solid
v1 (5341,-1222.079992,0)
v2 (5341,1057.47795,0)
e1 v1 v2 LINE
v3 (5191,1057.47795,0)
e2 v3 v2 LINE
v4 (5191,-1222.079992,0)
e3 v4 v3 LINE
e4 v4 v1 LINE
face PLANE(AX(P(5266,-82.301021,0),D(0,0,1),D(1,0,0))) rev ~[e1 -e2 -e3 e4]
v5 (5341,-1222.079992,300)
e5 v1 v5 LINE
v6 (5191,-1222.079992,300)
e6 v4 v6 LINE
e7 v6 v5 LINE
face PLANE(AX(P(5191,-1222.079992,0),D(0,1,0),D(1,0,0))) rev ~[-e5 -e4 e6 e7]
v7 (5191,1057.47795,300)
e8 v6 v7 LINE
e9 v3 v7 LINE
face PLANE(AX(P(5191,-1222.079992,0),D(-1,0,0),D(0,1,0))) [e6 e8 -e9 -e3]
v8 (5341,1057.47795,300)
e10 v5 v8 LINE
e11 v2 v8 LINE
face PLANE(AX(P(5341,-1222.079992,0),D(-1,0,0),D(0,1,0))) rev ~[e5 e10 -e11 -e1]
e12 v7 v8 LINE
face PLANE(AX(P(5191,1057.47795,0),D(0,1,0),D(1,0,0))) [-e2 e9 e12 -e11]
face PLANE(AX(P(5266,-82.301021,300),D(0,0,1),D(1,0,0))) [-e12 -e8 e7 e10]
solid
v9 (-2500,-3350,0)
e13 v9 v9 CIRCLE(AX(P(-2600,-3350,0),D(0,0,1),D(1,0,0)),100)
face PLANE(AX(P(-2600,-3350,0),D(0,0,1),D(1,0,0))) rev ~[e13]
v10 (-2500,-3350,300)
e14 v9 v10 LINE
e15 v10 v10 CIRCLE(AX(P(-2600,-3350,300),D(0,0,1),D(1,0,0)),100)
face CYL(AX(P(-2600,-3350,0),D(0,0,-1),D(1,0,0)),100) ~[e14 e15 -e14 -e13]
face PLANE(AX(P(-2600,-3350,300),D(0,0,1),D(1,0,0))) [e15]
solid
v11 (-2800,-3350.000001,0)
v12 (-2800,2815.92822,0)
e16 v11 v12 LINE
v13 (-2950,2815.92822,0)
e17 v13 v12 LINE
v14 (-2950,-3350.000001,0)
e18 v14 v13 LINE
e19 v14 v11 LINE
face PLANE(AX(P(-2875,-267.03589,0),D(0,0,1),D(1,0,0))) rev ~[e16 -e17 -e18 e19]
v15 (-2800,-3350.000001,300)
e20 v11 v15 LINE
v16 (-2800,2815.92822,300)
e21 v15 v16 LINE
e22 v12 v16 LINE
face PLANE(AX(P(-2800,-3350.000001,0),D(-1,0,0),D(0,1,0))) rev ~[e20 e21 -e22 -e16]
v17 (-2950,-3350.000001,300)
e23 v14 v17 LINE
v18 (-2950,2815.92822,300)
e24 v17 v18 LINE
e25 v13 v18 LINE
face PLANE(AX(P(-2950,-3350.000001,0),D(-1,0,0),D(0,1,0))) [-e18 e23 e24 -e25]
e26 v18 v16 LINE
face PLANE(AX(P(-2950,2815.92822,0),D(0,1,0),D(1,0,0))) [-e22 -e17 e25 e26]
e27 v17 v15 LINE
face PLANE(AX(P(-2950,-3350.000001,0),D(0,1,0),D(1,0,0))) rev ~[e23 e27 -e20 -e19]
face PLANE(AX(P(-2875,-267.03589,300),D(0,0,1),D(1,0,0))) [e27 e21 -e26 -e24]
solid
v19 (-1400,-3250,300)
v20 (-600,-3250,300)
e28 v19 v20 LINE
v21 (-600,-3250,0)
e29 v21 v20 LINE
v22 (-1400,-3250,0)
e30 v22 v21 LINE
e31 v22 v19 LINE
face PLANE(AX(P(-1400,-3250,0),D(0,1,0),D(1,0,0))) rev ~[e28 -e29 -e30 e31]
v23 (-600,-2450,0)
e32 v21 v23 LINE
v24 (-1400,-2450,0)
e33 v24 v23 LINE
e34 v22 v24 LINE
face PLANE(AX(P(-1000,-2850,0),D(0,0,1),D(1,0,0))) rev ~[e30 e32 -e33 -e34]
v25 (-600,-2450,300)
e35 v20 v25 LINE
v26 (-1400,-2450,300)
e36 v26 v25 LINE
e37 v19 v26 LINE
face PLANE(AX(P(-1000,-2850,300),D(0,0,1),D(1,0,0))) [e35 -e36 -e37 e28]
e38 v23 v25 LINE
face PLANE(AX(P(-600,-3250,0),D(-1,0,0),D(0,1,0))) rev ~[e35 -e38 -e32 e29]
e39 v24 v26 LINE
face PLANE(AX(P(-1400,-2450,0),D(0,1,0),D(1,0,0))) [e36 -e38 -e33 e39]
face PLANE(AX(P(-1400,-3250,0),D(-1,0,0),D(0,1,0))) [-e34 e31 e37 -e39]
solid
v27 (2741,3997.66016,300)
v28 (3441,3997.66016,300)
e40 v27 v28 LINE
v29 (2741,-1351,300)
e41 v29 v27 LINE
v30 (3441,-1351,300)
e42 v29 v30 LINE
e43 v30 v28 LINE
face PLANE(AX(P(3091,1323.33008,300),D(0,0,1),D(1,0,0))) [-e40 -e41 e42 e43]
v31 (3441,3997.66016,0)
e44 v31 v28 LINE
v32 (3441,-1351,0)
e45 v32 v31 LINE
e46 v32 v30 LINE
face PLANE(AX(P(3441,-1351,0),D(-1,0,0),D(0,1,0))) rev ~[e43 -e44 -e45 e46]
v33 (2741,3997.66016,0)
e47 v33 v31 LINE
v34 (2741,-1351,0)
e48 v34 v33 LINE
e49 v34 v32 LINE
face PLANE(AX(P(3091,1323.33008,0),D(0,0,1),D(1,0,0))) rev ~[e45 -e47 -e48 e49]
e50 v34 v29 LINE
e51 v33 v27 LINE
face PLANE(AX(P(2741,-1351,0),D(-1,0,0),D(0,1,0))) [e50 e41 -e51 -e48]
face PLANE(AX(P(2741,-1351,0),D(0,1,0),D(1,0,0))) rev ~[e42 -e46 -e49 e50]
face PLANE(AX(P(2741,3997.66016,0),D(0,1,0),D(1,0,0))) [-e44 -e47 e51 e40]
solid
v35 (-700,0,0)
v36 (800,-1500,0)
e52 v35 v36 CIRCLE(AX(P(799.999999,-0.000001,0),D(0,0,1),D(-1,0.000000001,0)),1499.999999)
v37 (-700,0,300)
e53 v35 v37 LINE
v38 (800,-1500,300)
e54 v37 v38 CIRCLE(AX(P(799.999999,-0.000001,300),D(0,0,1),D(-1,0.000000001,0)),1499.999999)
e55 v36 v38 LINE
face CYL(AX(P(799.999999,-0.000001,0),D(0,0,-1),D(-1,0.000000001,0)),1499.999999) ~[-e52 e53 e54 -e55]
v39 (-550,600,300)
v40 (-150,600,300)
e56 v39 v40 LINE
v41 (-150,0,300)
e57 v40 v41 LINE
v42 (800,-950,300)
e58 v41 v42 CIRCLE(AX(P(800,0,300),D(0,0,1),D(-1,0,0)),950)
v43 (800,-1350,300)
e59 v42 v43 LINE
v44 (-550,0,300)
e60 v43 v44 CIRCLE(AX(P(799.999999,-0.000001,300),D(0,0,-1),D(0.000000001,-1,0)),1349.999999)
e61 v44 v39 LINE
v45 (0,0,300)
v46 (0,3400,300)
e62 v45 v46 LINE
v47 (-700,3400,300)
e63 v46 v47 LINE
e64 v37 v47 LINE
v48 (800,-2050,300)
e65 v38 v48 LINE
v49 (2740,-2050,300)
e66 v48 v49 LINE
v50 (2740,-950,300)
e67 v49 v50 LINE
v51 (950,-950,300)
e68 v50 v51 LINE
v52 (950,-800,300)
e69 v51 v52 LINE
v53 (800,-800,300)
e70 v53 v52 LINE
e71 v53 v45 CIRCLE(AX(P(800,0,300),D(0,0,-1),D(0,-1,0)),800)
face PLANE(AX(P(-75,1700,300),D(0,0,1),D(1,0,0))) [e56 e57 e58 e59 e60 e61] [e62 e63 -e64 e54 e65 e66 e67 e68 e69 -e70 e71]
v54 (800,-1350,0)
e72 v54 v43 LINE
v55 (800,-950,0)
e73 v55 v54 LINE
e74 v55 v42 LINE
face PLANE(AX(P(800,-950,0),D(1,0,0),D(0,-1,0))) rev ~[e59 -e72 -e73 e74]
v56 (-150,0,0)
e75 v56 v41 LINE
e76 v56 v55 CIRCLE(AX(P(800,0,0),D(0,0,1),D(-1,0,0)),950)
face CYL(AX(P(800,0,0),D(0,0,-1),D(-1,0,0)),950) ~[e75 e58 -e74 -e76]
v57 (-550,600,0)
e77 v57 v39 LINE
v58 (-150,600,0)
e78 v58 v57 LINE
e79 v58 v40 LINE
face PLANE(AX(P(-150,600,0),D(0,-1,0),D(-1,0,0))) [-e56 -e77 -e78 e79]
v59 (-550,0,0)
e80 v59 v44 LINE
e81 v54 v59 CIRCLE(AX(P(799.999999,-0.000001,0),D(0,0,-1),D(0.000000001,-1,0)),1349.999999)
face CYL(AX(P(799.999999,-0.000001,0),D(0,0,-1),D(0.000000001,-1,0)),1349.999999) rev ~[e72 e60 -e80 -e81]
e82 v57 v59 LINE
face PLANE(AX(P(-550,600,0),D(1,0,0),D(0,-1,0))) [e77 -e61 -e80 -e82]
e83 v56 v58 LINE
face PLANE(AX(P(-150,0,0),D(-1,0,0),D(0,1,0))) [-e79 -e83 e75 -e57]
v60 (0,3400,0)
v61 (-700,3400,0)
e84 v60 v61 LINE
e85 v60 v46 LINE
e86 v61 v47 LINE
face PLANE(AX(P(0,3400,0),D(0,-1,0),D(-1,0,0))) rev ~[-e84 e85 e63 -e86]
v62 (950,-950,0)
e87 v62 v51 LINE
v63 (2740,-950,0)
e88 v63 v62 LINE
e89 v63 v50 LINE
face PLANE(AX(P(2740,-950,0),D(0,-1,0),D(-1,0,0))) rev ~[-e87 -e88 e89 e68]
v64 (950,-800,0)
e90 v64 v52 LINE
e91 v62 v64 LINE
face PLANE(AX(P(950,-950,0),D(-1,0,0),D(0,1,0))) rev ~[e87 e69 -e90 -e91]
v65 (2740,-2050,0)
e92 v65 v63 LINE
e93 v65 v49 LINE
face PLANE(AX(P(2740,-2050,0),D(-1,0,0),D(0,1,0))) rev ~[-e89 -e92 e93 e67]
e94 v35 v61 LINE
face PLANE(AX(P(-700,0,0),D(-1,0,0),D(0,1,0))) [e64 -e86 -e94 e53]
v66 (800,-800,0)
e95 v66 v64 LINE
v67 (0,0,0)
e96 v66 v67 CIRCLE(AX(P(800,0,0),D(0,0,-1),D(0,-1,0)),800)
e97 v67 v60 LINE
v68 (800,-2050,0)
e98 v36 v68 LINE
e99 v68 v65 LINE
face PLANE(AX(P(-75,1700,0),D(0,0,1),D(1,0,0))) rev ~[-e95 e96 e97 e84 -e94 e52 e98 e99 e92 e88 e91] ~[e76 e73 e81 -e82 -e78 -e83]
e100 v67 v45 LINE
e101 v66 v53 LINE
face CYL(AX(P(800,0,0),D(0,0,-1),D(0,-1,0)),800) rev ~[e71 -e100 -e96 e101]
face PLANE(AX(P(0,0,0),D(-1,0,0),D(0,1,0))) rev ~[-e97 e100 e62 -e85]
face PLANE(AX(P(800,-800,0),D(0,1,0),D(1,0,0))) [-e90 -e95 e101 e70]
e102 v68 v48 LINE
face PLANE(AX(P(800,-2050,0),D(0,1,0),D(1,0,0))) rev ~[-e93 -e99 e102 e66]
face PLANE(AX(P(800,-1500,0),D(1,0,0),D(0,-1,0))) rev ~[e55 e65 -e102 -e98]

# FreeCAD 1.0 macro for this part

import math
import FreeCAD as App
import Part
import Sketcher
from FreeCAD import Vector
Q = App.Units.Quantity


def add_polygon(sketch, points):
    """Adds a closed chain of lines whose ends are joined by coincident constraints."""
    first, n = sketch.GeometryCount, len(points)
    for a, b in zip(points, points[1:] + points[:1]):
        sketch.addGeometry(Part.LineSegment(App.Vector(*a, 0), App.Vector(*b, 0)), False)
    for i in range(n):
        sketch.addConstraint(Sketcher.Constraint("Coincident", first + i, 2, first + (i + 1) % n, 1))

doc = App.newDocument("Part")
body = doc.addObject("PartDesign::Body", "Body")
body.AllowCompound = True

sketch1 = body.newObject("Sketcher::SketchObject", "Sketch")
sketch1.AttachmentSupport = (doc.getObject("XY_Plane"), [""])
sketch1.MapMode = "FlatFace"
sketch1.addGeometry(Part.ArcOfCircle(Part.Circle(Vector(800, 0, 0), Vector(0, 0, 1), 1500), math.radians(180), math.radians(270)), False)
sketch1.addGeometry(Part.LineSegment(Vector(800, -1500, 0), Vector(800, -2050, 0)), False)
sketch1.addGeometry(Part.LineSegment(Vector(800, -2050, 0), Vector(2740, -2050, 0)), False)
sketch1.addGeometry(Part.LineSegment(Vector(2740, -2050, 0), Vector(2740, -950, 0)), False)
sketch1.addGeometry(Part.LineSegment(Vector(2740, -950, 0), Vector(950, -950, 0)), False)
sketch1.addGeometry(Part.LineSegment(Vector(950, -950, 0), Vector(950, -800, 0)), False)
sketch1.addGeometry(Part.LineSegment(Vector(950, -800, 0), Vector(800, -800, 0)), False)
sketch1.addGeometry(Part.ArcOfCircle(Part.Circle(Vector(800, 0, 0), Vector(0, 0, 1), 800), math.radians(180), math.radians(270)), False)
sketch1.addGeometry(Part.LineSegment(Vector(0, 0, 0), Vector(0, 3400, 0)), False)
sketch1.addGeometry(Part.LineSegment(Vector(0, 3400, 0), Vector(-700, 3400, 0)), False)
sketch1.addGeometry(Part.LineSegment(Vector(-700, 3400, 0), Vector(-700, 0, 0)), False)
sketch1.addGeometry(Part.LineSegment(Vector(800, -950, 0), Vector(800, -1350, 0)), False)
sketch1.addGeometry(Part.ArcOfCircle(Part.Circle(Vector(800, 0, 0), Vector(0, 0, 1), 1350), math.radians(180), math.radians(270)), False)
sketch1.addGeometry(Part.LineSegment(Vector(-550, 0, 0), Vector(-150, 0, 0)), False)
sketch1.addGeometry(Part.ArcOfCircle(Part.Circle(Vector(800, 0, 0), Vector(0, 0, 1), 950), math.radians(-180), math.radians(-90)), False)
add_polygon(sketch1, [(5191, 1057), (5191, -1222), (5341, -1222), (5341, 1057)])
add_polygon(sketch1, [(-1400, -2450), (-1400, -3250), (-600, -3250), (-600, -2450)])
sketch1.addGeometry(Part.Circle(Vector(-2600, -3350, 0), Vector(0, 0, 1), 100), False)
add_polygon(sketch1, [(-2950, 2816), (-2950, -3350), (-2800, -3350), (-2800, 2816)])
add_polygon(sketch1, [(2741, 3998), (2741, -1351), (3441, -1351), (3441, 3998)])
sketch1.addConstraint(Sketcher.Constraint("Coincident", 0, 2, 1, 1))
sketch1.addConstraint(Sketcher.Constraint("Coincident", 1, 2, 2, 1))
sketch1.addConstraint(Sketcher.Constraint("Coincident", 2, 2, 3, 1))
sketch1.addConstraint(Sketcher.Constraint("Coincident", 3, 2, 4, 1))
sketch1.addConstraint(Sketcher.Constraint("Coincident", 4, 2, 5, 1))
sketch1.addConstraint(Sketcher.Constraint("Coincident", 5, 2, 6, 1))
sketch1.addConstraint(Sketcher.Constraint("Tangent", 6, 2, 7, 2))
sketch1.addConstraint(Sketcher.Constraint("Coincident", 7, 1, 8, 1))
sketch1.addConstraint(Sketcher.Constraint("Coincident", 8, 2, 9, 1))
sketch1.addConstraint(Sketcher.Constraint("Coincident", 9, 2, 10, 1))
sketch1.addConstraint(Sketcher.Constraint("Coincident", 10, 2, 0, 1))
sketch1.addConstraint(Sketcher.Constraint("Coincident", 11, 2, 12, 2))
sketch1.addConstraint(Sketcher.Constraint("Coincident", 12, 1, 13, 1))
sketch1.addConstraint(Sketcher.Constraint("Coincident", 13, 2, 14, 1))
sketch1.addConstraint(Sketcher.Constraint("Coincident", 14, 2, 11, 1))
sketch1.addConstraint(Sketcher.Constraint("Vertical", 1))
sketch1.addConstraint(Sketcher.Constraint("Horizontal", 2))
sketch1.addConstraint(Sketcher.Constraint("Vertical", 3))
sketch1.addConstraint(Sketcher.Constraint("Horizontal", 4))
sketch1.addConstraint(Sketcher.Constraint("Vertical", 5))
sketch1.addConstraint(Sketcher.Constraint("Horizontal", 6))
sketch1.addConstraint(Sketcher.Constraint("Vertical", 8))
sketch1.addConstraint(Sketcher.Constraint("Horizontal", 9))
sketch1.addConstraint(Sketcher.Constraint("Vertical", 10))
sketch1.addConstraint(Sketcher.Constraint("Vertical", 11))
sketch1.addConstraint(Sketcher.Constraint("Horizontal", 13))
sketch1.addConstraint(Sketcher.Constraint("Vertical", 15))
sketch1.addConstraint(Sketcher.Constraint("Horizontal", 16))
sketch1.addConstraint(Sketcher.Constraint("Vertical", 17))
sketch1.addConstraint(Sketcher.Constraint("Horizontal", 18))
sketch1.addConstraint(Sketcher.Constraint("Vertical", 19))
sketch1.addConstraint(Sketcher.Constraint("Horizontal", 20))
sketch1.addConstraint(Sketcher.Constraint("Vertical", 21))
sketch1.addConstraint(Sketcher.Constraint("Horizontal", 22))
sketch1.addConstraint(Sketcher.Constraint("Vertical", 24))
sketch1.addConstraint(Sketcher.Constraint("Horizontal", 25))
sketch1.addConstraint(Sketcher.Constraint("Vertical", 26))
sketch1.addConstraint(Sketcher.Constraint("Horizontal", 27))
sketch1.addConstraint(Sketcher.Constraint("Vertical", 28))
sketch1.addConstraint(Sketcher.Constraint("Horizontal", 29))
sketch1.addConstraint(Sketcher.Constraint("Vertical", 30))
sketch1.addConstraint(Sketcher.Constraint("Horizontal", 31))
sketch1.addConstraint(Sketcher.Constraint("Coincident", 7, 3, 0, 3))
sketch1.addConstraint(Sketcher.Constraint("Coincident", 12, 3, 0, 3))
sketch1.addConstraint(Sketcher.Constraint("Coincident", 14, 3, 0, 3))
sketch1.addConstraint(Sketcher.Constraint("PointOnObject", 0, 3, -1))
sketch1.addConstraint(Sketcher.Constraint("PointOnObject", 8, 2, -2))
sketch1.addConstraint(Sketcher.Constraint("PointOnObject", 10, 2, -1))
sketch1.addConstraint(Sketcher.Constraint("PointOnObject", 13, 2, -1))
sketch1.addConstraint(Sketcher.Constraint("Horizontal", 4, 2, 14, 2))
sketch1.addConstraint(Sketcher.Constraint("Horizontal", 23, 3, 24, 2))
sketch1.addConstraint(Sketcher.Constraint("Vertical", 1, 2, 6, 2))
sketch1.addConstraint(Sketcher.Constraint("Vertical", 6, 2, 11, 2))
sketch1.addConstraint(Sketcher.Constraint("Equal", 6, 16))
sketch1.addConstraint(Sketcher.Constraint("Equal", 18, 25))
sketch1.addConstraint(Sketcher.Constraint("Equal", 9, 29))
sketch1.addConstraint(Sketcher.Constraint("Equal", 27, 5))
sketch1.addConstraint(Sketcher.Constraint("Equal", 8, 10))
sketch1.addConstraint(Sketcher.Constraint("Equal", 22, 19))
sketch1.addConstraint(Sketcher.Constraint("Diameter", 23, Q("200 mm")))
sketch1.addConstraint(Sketcher.Constraint("Radius", 0, Q("1499.999999 mm")))
sketch1.addConstraint(Sketcher.Constraint("Radius", 7, Q("800 mm")))
sketch1.addConstraint(Sketcher.Constraint("Radius", 12, Q("1349.999999 mm")))
sketch1.addConstraint(Sketcher.Constraint("Radius", 14, Q("950 mm")))
sketch1.addConstraint(Sketcher.Constraint("DistanceX", 2, 1, 2, 2, Q("1940 mm")))
sketch1.addConstraint(Sketcher.Constraint("DistanceX", 20, 1, 20, 2, Q("800 mm")))
sketch1.addConstraint(Sketcher.Constraint("DistanceY", 1, 2, 1, 1, Q("550 mm")))
sketch1.addConstraint(Sketcher.Constraint("DistanceY", 8, 1, 8, 2, Q("3400 mm")))
sketch1.addConstraint(Sketcher.Constraint("DistanceX", 23, 3, -1, 1, Q("2600 mm")))
sketch1.addConstraint(Sketcher.Constraint("DistanceY", 23, 3, -1, 1, Q("3350 mm")))
sketch1.addConstraint(Sketcher.Constraint("DistanceX", -1, 1, 15, 2, Q("5191 mm")))
sketch1.addConstraint(Sketcher.Constraint("DistanceX", 19, 2, -1, 1, Q("1400 mm")))
sketch1.addConstraint(Sketcher.Constraint("DistanceY", 19, 2, -1, 1, Q("3250 mm")))
sketch1.addConstraint(Sketcher.Constraint("DistanceX", 24, 2, -1, 1, Q("2950 mm")))
sketch1.addConstraint(Sketcher.Constraint("DistanceX", -1, 1, 28, 2, Q("2741 mm")))
sketch1.addConstraint(Sketcher.Constraint("DistanceY", 28, 2, -1, 1, Q("1351 mm")))
sketch1.addConstraint(Sketcher.Constraint("DistanceY", 24, 2, 24, 1, Q("6165.928221 mm")))
sketch1.addConstraint(Sketcher.Constraint("DistanceY", 28, 2, 28, 1, Q("5348.66016 mm")))
sketch1.addConstraint(Sketcher.Constraint("DistanceY", 15, 2, 15, 1, Q("2279.557943 mm")))
sketch1.addConstraint(Sketcher.Constraint("DistanceY", -1, 1, 17, 2, Q("1057.47795 mm")))
pad1 = body.newObject("PartDesign::Pad", "Pad")
pad1.Profile = sketch1
pad1.Length = 300

sketch2 = body.newObject("Sketcher::SketchObject", "Sketch001")
sketch2.AttachmentSupport = (doc.getObject("XY_Plane"), [""])
sketch2.MapMode = "FlatFace"
sketch2.addGeometry(Part.ArcOfCircle(Part.Circle(Vector(800, 0, 0), Vector(0, 0, 1), 950), math.radians(-180), math.radians(-90)), False)
sketch2.addGeometry(Part.LineSegment(Vector(-150, 0, 0), Vector(-150, 600, 0)), False)
sketch2.addGeometry(Part.LineSegment(Vector(-150, 600, 0), Vector(-550, 600, 0)), False)
sketch2.addGeometry(Part.LineSegment(Vector(-550, 600, 0), Vector(-550, 0, 0)), False)
sketch2.addGeometry(Part.ArcOfCircle(Part.Circle(Vector(800, 0, 0), Vector(0, 0, 1), 1350), math.radians(180), math.radians(270)), False)
sketch2.addGeometry(Part.LineSegment(Vector(800, -1350, 0), Vector(800, -950, 0)), False)
sketch2.addConstraint(Sketcher.Constraint("Tangent", 0, 1, 1, 1))
sketch2.addConstraint(Sketcher.Constraint("Coincident", 1, 2, 2, 1))
sketch2.addConstraint(Sketcher.Constraint("Coincident", 2, 2, 3, 1))
sketch2.addConstraint(Sketcher.Constraint("Tangent", 3, 2, 4, 1))
sketch2.addConstraint(Sketcher.Constraint("Coincident", 4, 2, 5, 1))
sketch2.addConstraint(Sketcher.Constraint("Coincident", 5, 2, 0, 2))
sketch2.addConstraint(Sketcher.Constraint("Vertical", 1))
sketch2.addConstraint(Sketcher.Constraint("Horizontal", 2))
sketch2.addConstraint(Sketcher.Constraint("Vertical", 3))
sketch2.addConstraint(Sketcher.Constraint("Vertical", 5))
sketch2.addConstraint(Sketcher.Constraint("Coincident", 4, 3, 0, 3))
sketch2.addConstraint(Sketcher.Constraint("PointOnObject", 0, 3, -1))
sketch2.addConstraint(Sketcher.Constraint("Radius", 0, Q("950 mm")))
sketch2.addConstraint(Sketcher.Constraint("Radius", 4, Q("1349.999999 mm")))
sketch2.addConstraint(Sketcher.Constraint("DistanceY", 1, 1, 1, 2, Q("600 mm")))
sketch2.addConstraint(Sketcher.Constraint("DistanceX", -1, 1, 0, 3, Q("800 mm")))
sketch2.addConstraint(Sketcher.Constraint("DistanceX", -1, 1, 5, 2, Q("800 mm")))
pocket1 = body.newObject("PartDesign::Pocket", "Pocket")
pocket1.Profile = sketch2
pocket1.Length = 500
pocket1.Reversed = True

doc.recompute()
